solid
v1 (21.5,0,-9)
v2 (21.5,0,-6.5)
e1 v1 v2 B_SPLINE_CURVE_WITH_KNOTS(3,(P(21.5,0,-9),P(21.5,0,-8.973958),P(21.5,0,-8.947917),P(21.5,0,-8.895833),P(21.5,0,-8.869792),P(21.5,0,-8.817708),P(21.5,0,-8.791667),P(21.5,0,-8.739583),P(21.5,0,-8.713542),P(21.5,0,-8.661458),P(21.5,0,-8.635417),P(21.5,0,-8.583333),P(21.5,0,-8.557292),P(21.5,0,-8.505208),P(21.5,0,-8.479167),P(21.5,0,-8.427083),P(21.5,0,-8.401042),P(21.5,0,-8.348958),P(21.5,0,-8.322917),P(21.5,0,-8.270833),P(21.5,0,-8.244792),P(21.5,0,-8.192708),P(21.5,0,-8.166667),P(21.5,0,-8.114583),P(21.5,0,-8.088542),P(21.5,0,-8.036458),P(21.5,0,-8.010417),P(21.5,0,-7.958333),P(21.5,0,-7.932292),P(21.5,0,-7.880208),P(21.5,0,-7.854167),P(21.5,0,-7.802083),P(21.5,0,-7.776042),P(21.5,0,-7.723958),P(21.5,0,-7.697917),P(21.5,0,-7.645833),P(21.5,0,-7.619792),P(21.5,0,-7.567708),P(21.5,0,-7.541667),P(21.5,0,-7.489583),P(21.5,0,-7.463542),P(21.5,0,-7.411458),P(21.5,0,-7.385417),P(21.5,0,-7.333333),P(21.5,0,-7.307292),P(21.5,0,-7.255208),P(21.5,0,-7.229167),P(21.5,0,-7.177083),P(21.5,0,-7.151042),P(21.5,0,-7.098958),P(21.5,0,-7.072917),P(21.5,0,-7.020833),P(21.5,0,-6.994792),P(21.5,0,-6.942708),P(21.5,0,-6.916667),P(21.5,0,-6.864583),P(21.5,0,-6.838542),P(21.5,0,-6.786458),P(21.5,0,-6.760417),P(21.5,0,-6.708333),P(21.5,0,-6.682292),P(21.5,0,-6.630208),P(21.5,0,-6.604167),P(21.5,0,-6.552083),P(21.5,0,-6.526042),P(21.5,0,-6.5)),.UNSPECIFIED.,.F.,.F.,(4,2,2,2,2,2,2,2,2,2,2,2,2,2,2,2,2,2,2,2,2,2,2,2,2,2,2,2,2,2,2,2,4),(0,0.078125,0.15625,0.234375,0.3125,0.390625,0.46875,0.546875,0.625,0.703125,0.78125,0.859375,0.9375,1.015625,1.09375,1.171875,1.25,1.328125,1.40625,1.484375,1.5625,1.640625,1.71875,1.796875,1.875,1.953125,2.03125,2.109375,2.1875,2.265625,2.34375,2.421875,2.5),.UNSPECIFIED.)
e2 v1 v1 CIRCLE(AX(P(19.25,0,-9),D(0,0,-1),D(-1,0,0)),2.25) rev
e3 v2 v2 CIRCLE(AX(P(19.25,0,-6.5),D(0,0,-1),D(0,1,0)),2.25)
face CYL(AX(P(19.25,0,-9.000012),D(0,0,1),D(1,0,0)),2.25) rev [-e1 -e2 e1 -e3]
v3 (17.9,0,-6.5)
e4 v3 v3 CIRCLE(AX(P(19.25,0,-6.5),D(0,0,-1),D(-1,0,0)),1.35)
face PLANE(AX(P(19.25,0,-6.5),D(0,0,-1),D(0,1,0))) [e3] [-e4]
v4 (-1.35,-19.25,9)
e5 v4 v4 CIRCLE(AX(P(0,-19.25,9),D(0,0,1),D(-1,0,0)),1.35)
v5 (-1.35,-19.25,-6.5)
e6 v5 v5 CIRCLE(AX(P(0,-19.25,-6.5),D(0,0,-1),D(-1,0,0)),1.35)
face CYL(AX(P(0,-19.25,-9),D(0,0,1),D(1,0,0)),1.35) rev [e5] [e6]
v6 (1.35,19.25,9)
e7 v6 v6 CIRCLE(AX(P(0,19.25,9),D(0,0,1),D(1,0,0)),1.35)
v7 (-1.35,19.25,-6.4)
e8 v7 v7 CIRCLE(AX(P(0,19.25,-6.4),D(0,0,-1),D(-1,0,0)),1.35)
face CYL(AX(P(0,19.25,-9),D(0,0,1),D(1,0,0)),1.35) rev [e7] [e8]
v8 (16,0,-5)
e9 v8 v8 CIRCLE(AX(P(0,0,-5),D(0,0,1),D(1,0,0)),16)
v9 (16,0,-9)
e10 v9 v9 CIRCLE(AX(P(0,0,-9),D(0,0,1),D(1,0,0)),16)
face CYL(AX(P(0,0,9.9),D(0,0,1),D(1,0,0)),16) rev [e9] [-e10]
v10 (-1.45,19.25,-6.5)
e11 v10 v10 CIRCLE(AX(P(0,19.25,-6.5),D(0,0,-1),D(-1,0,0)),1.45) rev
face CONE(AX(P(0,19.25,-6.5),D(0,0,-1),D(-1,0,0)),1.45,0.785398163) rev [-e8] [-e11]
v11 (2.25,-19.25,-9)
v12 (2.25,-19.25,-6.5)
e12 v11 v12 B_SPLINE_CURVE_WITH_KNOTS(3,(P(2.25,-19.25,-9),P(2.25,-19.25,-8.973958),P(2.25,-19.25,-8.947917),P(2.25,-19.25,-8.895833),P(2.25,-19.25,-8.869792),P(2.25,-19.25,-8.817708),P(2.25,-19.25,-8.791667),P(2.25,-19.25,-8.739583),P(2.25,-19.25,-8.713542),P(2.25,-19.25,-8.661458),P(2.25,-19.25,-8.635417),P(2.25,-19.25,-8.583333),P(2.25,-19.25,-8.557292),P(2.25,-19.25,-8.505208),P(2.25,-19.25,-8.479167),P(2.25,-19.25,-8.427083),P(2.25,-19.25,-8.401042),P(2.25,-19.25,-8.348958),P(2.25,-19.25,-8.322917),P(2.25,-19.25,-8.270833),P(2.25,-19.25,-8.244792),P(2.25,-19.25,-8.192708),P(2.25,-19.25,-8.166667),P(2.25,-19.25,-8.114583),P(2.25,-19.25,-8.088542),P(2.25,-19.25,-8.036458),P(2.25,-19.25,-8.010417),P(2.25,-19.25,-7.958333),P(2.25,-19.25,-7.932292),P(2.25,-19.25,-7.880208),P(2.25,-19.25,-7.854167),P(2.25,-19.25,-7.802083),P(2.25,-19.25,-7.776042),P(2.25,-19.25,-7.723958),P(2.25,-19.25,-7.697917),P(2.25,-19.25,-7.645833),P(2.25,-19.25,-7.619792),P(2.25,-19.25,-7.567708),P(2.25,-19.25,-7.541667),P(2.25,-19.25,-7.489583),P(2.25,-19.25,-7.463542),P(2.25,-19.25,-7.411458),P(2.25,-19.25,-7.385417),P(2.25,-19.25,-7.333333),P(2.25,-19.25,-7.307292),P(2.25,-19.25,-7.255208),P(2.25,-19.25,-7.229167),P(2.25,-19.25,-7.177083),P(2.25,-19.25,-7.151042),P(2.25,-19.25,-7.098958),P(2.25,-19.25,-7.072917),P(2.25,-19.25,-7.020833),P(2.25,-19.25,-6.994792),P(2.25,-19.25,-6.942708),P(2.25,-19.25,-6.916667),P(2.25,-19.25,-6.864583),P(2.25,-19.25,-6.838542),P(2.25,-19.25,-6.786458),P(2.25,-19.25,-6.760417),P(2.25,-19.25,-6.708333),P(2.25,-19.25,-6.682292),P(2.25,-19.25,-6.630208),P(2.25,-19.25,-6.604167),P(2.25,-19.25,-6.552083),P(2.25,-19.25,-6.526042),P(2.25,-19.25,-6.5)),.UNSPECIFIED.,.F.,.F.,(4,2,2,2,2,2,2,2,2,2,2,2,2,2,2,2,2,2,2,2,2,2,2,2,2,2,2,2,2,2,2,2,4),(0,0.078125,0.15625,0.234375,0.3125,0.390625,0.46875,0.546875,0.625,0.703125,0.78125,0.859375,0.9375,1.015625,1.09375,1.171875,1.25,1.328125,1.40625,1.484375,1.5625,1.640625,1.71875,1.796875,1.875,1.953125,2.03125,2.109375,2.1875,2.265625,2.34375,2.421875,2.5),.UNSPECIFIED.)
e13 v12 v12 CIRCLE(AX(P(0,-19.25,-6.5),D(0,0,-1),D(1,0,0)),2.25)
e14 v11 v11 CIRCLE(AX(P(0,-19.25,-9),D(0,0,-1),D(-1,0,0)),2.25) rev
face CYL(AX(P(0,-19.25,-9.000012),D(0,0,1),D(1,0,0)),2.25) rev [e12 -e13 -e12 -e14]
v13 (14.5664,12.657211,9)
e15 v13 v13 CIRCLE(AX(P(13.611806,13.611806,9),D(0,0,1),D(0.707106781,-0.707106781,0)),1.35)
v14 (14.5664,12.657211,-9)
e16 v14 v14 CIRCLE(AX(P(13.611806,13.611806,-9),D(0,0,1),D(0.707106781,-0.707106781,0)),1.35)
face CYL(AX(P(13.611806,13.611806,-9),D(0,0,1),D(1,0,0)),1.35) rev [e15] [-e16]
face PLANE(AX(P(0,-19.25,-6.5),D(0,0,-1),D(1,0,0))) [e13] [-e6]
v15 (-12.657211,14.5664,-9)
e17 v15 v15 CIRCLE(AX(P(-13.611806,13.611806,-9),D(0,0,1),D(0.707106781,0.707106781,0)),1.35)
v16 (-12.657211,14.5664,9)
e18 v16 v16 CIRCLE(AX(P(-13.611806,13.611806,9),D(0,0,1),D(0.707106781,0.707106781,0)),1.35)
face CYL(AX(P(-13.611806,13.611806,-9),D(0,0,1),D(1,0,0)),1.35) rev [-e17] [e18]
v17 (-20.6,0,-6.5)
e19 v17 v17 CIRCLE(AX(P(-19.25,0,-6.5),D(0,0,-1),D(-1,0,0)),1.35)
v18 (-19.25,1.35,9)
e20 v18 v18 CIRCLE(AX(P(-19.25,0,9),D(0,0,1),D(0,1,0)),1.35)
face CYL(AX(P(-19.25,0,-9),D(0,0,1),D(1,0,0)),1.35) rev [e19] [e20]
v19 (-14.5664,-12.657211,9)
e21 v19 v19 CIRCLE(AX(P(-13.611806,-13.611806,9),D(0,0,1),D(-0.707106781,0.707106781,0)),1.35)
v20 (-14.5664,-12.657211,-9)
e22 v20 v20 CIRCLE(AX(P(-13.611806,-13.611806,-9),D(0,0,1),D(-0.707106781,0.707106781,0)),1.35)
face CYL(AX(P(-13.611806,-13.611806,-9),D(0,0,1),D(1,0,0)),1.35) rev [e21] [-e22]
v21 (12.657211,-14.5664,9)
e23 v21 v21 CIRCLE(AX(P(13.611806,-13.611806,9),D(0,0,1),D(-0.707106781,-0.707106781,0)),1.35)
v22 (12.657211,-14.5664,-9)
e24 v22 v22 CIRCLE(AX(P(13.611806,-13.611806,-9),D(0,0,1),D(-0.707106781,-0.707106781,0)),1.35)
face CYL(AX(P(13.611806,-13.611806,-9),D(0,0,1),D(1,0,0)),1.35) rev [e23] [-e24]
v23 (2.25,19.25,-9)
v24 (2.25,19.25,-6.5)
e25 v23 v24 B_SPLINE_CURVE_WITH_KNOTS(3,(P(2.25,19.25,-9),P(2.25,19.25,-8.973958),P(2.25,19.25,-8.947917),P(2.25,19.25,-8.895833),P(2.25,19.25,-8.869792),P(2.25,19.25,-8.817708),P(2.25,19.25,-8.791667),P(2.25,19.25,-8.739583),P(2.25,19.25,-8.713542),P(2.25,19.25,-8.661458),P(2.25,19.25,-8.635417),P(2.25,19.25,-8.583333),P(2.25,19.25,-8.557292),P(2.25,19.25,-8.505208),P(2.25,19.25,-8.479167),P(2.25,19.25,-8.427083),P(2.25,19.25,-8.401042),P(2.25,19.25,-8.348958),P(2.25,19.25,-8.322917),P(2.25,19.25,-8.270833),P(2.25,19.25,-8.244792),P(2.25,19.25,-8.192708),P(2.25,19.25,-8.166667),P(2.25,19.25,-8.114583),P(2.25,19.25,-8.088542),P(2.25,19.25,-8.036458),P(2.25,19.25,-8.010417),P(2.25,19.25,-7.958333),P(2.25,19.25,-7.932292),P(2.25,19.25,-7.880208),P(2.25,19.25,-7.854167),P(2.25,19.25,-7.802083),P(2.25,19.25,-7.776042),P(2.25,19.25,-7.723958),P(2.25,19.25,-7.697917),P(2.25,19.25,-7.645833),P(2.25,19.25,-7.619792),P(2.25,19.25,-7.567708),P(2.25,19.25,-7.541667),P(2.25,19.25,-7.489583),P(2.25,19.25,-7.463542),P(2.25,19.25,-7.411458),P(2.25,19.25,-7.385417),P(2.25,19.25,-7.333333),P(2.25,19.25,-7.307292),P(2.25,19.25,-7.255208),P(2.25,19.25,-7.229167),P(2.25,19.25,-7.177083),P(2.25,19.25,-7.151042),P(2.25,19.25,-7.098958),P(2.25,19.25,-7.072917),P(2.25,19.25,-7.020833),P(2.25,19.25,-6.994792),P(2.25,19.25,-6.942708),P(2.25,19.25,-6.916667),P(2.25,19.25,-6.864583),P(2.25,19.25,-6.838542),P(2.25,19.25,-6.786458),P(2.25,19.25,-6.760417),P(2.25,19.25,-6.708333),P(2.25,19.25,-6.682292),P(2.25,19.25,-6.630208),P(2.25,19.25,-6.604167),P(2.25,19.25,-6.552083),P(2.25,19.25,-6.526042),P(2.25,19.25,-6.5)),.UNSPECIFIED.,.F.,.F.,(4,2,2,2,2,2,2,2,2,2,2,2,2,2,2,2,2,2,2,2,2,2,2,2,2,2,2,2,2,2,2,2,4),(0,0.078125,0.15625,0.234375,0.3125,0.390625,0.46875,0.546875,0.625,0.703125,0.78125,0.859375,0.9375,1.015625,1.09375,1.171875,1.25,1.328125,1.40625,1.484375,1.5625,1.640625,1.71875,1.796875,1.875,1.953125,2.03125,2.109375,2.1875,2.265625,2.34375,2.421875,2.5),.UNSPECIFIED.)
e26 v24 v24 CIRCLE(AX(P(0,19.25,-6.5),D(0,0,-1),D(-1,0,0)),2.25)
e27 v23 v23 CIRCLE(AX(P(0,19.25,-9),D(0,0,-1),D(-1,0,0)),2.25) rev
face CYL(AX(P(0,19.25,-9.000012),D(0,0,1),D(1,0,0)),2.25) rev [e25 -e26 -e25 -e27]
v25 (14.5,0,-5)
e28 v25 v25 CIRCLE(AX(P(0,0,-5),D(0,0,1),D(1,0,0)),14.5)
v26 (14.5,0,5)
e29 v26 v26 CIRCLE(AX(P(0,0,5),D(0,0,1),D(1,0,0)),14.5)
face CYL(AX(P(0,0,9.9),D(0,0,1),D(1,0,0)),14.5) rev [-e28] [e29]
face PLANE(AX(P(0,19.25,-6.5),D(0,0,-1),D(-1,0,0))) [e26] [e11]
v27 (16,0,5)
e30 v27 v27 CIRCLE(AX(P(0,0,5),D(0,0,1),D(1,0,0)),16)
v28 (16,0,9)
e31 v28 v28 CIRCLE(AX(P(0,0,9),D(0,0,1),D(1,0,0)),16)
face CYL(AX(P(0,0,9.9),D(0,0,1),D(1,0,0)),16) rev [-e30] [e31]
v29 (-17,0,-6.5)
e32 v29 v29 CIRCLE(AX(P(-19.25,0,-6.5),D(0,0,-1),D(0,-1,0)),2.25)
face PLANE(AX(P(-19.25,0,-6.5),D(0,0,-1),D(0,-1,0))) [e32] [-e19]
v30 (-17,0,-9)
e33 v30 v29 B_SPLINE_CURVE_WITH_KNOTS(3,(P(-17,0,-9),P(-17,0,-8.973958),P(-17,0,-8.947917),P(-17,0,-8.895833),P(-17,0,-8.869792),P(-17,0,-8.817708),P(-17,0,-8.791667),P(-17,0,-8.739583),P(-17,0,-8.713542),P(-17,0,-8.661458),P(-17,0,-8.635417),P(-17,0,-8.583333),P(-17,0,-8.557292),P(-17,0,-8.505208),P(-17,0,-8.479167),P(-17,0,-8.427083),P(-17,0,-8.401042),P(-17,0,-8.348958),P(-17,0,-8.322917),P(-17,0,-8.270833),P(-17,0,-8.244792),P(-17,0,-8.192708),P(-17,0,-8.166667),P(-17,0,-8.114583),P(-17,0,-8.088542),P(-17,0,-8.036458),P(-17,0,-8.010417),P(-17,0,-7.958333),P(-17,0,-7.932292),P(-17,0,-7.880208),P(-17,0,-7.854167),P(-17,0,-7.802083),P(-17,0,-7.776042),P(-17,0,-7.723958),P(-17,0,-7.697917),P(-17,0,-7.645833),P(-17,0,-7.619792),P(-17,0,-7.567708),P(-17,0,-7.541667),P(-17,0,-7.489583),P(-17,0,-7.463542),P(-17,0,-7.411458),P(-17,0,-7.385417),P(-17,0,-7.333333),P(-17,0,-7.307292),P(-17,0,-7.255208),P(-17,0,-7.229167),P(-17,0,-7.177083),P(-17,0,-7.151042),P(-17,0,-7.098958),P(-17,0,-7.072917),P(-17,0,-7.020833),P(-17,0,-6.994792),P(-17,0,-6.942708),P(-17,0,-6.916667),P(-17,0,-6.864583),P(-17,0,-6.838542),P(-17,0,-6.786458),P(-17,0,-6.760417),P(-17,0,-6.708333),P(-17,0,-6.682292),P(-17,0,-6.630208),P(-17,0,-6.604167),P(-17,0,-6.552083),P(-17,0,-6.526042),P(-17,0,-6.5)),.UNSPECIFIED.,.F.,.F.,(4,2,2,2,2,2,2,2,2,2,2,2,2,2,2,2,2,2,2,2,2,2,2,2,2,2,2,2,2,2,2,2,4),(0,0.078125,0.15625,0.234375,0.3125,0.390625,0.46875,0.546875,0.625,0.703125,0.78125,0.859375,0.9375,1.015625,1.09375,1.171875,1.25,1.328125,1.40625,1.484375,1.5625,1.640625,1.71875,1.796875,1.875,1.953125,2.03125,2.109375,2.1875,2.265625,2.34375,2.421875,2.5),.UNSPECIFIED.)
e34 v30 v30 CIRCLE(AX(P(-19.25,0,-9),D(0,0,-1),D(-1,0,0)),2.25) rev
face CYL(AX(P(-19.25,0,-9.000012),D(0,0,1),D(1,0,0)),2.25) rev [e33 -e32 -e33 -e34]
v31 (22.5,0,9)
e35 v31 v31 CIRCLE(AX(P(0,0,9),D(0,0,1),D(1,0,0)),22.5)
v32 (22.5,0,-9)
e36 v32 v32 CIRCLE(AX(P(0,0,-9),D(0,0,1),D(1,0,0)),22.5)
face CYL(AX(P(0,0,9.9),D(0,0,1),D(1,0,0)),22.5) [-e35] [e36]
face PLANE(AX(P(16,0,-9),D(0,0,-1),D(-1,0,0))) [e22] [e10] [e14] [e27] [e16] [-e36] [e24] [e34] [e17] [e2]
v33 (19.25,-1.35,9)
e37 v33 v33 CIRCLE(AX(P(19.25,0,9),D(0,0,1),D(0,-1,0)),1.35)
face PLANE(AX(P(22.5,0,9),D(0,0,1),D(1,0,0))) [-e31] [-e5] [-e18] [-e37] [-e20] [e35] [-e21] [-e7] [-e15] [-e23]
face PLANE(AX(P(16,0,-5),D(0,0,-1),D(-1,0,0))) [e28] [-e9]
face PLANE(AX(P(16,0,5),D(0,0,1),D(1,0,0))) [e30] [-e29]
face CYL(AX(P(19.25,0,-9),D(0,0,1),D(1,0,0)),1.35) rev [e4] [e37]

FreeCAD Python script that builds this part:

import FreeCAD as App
import Part
import Sketcher

V = App.Vector
Q = App.Units.Quantity


def edges_at(feature, points):
    """Names of the edges that pass closest to the given points."""
    edges = feature.Shape.Edges
    near = lambda p: min(range(len(edges)), key=lambda i: edges[i].distToShape(Part.Vertex(*p))[0])
    return sorted({f"Edge{near(p) + 1}" for p in points})


def add_polygon(sketch, points):
    """Adds a closed chain of lines whose ends are joined by coincident constraints."""
    first, n = sketch.GeometryCount, len(points)
    for a, b in zip(points, points[1:] + points[:1]):
        sketch.addGeometry(Part.LineSegment(App.Vector(*a, 0), App.Vector(*b, 0)), False)
    for i in range(n):
        sketch.addConstraint(Sketcher.Constraint("Coincident", first + i, 2, first + (i + 1) % n, 1))

doc = App.newDocument("Part")
params = doc.addObject("Spreadsheet::Sheet", "Params")
for row, (alias, value) in enumerate([
    ("sketch1_height", "4 mm"),
    ("sketch1_height2", "10 mm"),
    ("sketch1_width", "1.5 mm"),
    ("sketch1_width2", "6.5 mm"),
    ("revolution_angle", "360 deg"),
    ("sketch2_diameter", "2.7 mm"),
    ("pocket1_length", "68.136223 mm"),
    ("sketch3_diameter", "4.5 mm"),
    ("pocket2_length", "40.058173 mm"),
    ("chamfer_size", "0.1 mm"),
], start=1):
    params.set(f"A{row}", alias)
    params.set(f"B{row}", "=" + value)
    params.setAlias(f"B{row}", alias)

body = doc.addObject("PartDesign::Body", "Body")

# Sketch on XZ plane
sketch1 = body.newObject("Sketcher::SketchObject", "Sketch")
sketch1.AttachmentSupport = (doc.getObject("XZ_Plane"), [""])
sketch1.MapMode = "FlatFace"
add_polygon(sketch1, [(16, -9), (16, -5), (14.5, -5), (14.5, 5), (16, 5), (16, 9), (22.5, 9), (22.5, -9)])  # lines 0-7
sketch1.addConstraint([
    Sketcher.Constraint("Vertical", 0),
    Sketcher.Constraint("Horizontal", 1),
    Sketcher.Constraint("Vertical", 2),
    Sketcher.Constraint("Horizontal", 3),
    Sketcher.Constraint("Vertical", 4),
    Sketcher.Constraint("Horizontal", 5),
    Sketcher.Constraint("Vertical", 6),
    Sketcher.Constraint("Horizontal", 7),
    Sketcher.Constraint("Symmetric", 0, 2, 3, 2, -1),
    Sketcher.Constraint("Equal", 0, 4),
    Sketcher.Constraint("DistanceY", 0, 1, 0, 2, Q("4 mm")),
    Sketcher.Constraint("DistanceY", 2, 1, 2, 2, Q("10 mm")),
    Sketcher.Constraint("DistanceX", 1, 2, 1, 1, Q("1.5 mm")),
    Sketcher.Constraint("DistanceX", 5, 1, 5, 2, Q("6.5 mm")),
    Sketcher.Constraint("DistanceX", -1, 1, 0, 2, Q("16 mm")),
])
sketch1.setExpression("Constraints[18]", "Params.sketch1_height")
sketch1.setExpression("Constraints[19]", "Params.sketch1_height2")
sketch1.setExpression("Constraints[20]", "Params.sketch1_width")
sketch1.setExpression("Constraints[21]", "Params.sketch1_width2")
revolution = body.newObject("PartDesign::Revolution", "Revolution")
revolution.Profile = sketch1
revolution.ReferenceAxis = (sketch1, ["V_Axis"])
revolution.setExpression("Angle", "Params.revolution_angle")

# Sketch on XY plane
sketch2 = body.newObject("Sketcher::SketchObject", "Sketch001")
sketch2.AttachmentSupport = (doc.getObject("XY_Plane"), [""])
sketch2.MapMode = "FlatFace"
sketch2.addGeometry(Part.Circle(V(0, 19.2, 0), V(0, 0, 1), 1.4), False)
sketch2.addConstraint([
    Sketcher.Constraint("PointOnObject", 0, 3, -2),
    Sketcher.Constraint("Diameter", 0, Q("2.7 mm")),
    Sketcher.Constraint("DistanceY", -1, 1, 0, 3, Q("19.25 mm")),
])
sketch2.setExpression("Constraints[1]", "Params.sketch2_diameter")
pocket1 = body.newObject("PartDesign::Pocket", "Pocket")
pocket1.Profile = sketch2
pocket1.setExpression("Length", "Params.pocket1_length")
pocket1.Midplane = True

# Sketch on XY plane
sketch3 = body.newObject("Sketcher::SketchObject", "Sketch002")
sketch3.AttachmentSupport = (doc.getObject("XY_Plane"), [""])
sketch3.MapMode = "FlatFace"
sketch3.AttachmentOffset = App.Placement(V(0, 0, -6.5), App.Rotation())
sketch3.addGeometry(Part.Circle(V(0, 19.2, 0), V(0, 0, 1), 2.2), False)
sketch3.addConstraint([
    Sketcher.Constraint("PointOnObject", 0, 3, -2),
    Sketcher.Constraint("Diameter", 0, Q("4.5 mm")),
    Sketcher.Constraint("DistanceY", -1, 1, 0, 3, Q("19.25 mm")),
])
sketch3.setExpression("Constraints[1]", "Params.sketch3_diameter")
pocket2 = body.newObject("PartDesign::Pocket", "Pocket001")
pocket2.Profile = sketch3
pocket2.setExpression("Length", "Params.pocket2_length")
doc.recompute()

chamfer = body.newObject("PartDesign::Chamfer", "Chamfer")
chamfer.Base = (pocket2, edges_at(pocket2, [(-1.35, 19.25, -6.5)]))
chamfer.setExpression("Size", "Params.chamfer_size")
doc.recompute()

polarpattern = body.newObject("PartDesign::PolarPattern", "PolarPattern")
polarpattern.Originals = [pocket2]
polarpattern.Axis = (doc.getObject("Z_Axis"), [""])
polarpattern.Angle = 360
polarpattern.Occurrences = 4
body.Tip = polarpattern
doc.recompute()

polarpattern2 = body.newObject("PartDesign::PolarPattern", "PolarPattern001")
polarpattern2.Originals = [pocket1]
polarpattern2.Axis = (doc.getObject("Z_Axis"), [""])
polarpattern2.Angle = 360
polarpattern2.Occurrences = 8
body.Tip = polarpattern2

doc.recompute()
